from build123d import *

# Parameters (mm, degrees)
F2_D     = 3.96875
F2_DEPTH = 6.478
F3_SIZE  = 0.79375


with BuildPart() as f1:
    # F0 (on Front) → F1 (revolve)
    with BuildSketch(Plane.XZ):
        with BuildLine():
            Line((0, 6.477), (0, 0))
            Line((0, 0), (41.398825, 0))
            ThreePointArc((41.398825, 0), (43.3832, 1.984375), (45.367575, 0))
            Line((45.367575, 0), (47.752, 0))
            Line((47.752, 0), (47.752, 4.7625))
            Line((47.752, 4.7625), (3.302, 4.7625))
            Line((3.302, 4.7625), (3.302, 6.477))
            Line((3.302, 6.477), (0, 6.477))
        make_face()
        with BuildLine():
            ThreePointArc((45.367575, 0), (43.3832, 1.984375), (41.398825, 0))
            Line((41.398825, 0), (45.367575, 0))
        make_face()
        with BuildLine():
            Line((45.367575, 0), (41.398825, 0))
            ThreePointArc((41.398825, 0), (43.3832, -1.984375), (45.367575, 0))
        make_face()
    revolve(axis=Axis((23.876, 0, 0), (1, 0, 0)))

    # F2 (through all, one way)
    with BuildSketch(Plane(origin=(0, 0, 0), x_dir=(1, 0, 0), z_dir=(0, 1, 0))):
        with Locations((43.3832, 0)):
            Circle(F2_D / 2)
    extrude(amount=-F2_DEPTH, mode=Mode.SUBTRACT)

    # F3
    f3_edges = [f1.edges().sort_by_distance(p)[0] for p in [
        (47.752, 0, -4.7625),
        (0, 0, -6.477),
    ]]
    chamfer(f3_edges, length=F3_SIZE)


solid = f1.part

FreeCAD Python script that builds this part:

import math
import FreeCAD as App
import Part
import Sketcher
Q = App.Units.Quantity


def edges_at(feature, points):
    """Names of the edges that pass closest to the given points."""
    edges = feature.Shape.Edges
    near = lambda p: min(range(len(edges)), key=lambda i: edges[i].distToShape(Part.Vertex(*p))[0])
    return sorted({f"Edge{near(p) + 1}" for p in points})

doc = App.newDocument("Part")
body = doc.addObject("PartDesign::Body", "Body")

# Sketch on XZ plane
sketch1 = body.newObject("Sketcher::SketchObject", "Sketch")
sketch1.AttachmentSupport = (doc.getObject("XZ_Plane"), [""])
sketch1.MapMode = "FlatFace"
sketch1.addGeometry(Part.LineSegment(App.Vector(0, 6.5, 0), App.Vector(0, 0, 0)), False)
sketch1.addGeometry(Part.LineSegment(App.Vector(0, 0, 0), App.Vector(41.4, 0, 0)), False)
sketch1.addGeometry(Part.ArcOfCircle(Part.Circle(App.Vector(43.4, 0, 0), App.Vector(0, 0, 1), 2), math.radians(180), math.radians(360)), False)
sketch1.addGeometry(Part.LineSegment(App.Vector(45.4, 0, 0), App.Vector(47.8, 0, 0)), False)
sketch1.addGeometry(Part.LineSegment(App.Vector(47.8, 0, 0), App.Vector(47.8, 4.8, 0)), False)
sketch1.addGeometry(Part.LineSegment(App.Vector(47.8, 4.8, 0), App.Vector(3.3, 4.8, 0)), False)
sketch1.addGeometry(Part.LineSegment(App.Vector(3.3, 4.8, 0), App.Vector(3.3, 6.5, 0)), False)
sketch1.addGeometry(Part.LineSegment(App.Vector(3.3, 6.5, 0), App.Vector(0, 6.5, 0)), False)
sketch1.addConstraint(Sketcher.Constraint("Coincident", 0, 2, 1, 1))
sketch1.addConstraint(Sketcher.Constraint("Coincident", 1, 2, 2, 1))
sketch1.addConstraint(Sketcher.Constraint("Coincident", 2, 2, 3, 1))
sketch1.addConstraint(Sketcher.Constraint("Coincident", 3, 2, 4, 1))
sketch1.addConstraint(Sketcher.Constraint("Coincident", 4, 2, 5, 1))
sketch1.addConstraint(Sketcher.Constraint("Coincident", 5, 2, 6, 1))
sketch1.addConstraint(Sketcher.Constraint("Coincident", 6, 2, 7, 1))
sketch1.addConstraint(Sketcher.Constraint("Coincident", 7, 2, 0, 1))
sketch1.addConstraint(Sketcher.Constraint("Vertical", 0))
sketch1.addConstraint(Sketcher.Constraint("Horizontal", 1))
sketch1.addConstraint(Sketcher.Constraint("Horizontal", 3))
sketch1.addConstraint(Sketcher.Constraint("Vertical", 4))
sketch1.addConstraint(Sketcher.Constraint("Horizontal", 5))
sketch1.addConstraint(Sketcher.Constraint("Vertical", 6))
sketch1.addConstraint(Sketcher.Constraint("Horizontal", 7))
sketch1.addConstraint(Sketcher.Constraint("Coincident", 0, 2, -1, 1))
sketch1.addConstraint(Sketcher.Constraint("PointOnObject", 2, 3, -1))
sketch1.addConstraint(Sketcher.Constraint("PointOnObject", 2, 2, -1))
sketch1.addConstraint(Sketcher.Constraint("Radius", 2, Q("0.078125 in")))
sketch1.addConstraint(Sketcher.Constraint("DistanceX", 5, 2, 5, 1, Q("1.75 in")))
sketch1.addConstraint(Sketcher.Constraint("DistanceX", 7, 2, 7, 1, Q("0.13 in")))
sketch1.addConstraint(Sketcher.Constraint("DistanceY", 0, 2, 0, 1, Q("0.255 in")))
sketch1.addConstraint(Sketcher.Constraint("DistanceY", 4, 1, 4, 2, Q("0.1875 in")))
sketch1.addConstraint(Sketcher.Constraint("DistanceX", -1, 1, 2, 3, Q("1.708 in")))
revolution = body.newObject("PartDesign::Revolution", "Revolution")
revolution.Profile = sketch1
revolution.ReferenceAxis = (sketch1, ["H_Axis"])
revolution.Angle = 360

# Sketch on XZ plane
sketch2 = body.newObject("Sketcher::SketchObject", "Sketch001")
sketch2.AttachmentSupport = (doc.getObject("XZ_Plane"), [""])
sketch2.MapMode = "FlatFace"
sketch2.addGeometry(Part.Circle(App.Vector(43.4, 0, 0), App.Vector(0, 0, 1), 2), False)
sketch2.addConstraint(Sketcher.Constraint("PointOnObject", 0, 3, -1))
sketch2.addConstraint(Sketcher.Constraint("Diameter", 0, Q("0.15625 in")))
sketch2.addConstraint(Sketcher.Constraint("DistanceX", -1, 1, 0, 3, Q("1.708 in")))
pocket1 = body.newObject("PartDesign::Pocket", "Pocket")
pocket1.Profile = sketch2
pocket1.Type = "ThroughAll"
pocket1.Reversed = True
doc.recompute()

chamfer = body.newObject("PartDesign::Chamfer", "Chamfer")
chamfer.Base = (pocket1, edges_at(pocket1, [(47.752, 0, -4.763), (0, 0, -6.477)]))
chamfer.Size = Q("0.03125 in")

doc.recompute()
